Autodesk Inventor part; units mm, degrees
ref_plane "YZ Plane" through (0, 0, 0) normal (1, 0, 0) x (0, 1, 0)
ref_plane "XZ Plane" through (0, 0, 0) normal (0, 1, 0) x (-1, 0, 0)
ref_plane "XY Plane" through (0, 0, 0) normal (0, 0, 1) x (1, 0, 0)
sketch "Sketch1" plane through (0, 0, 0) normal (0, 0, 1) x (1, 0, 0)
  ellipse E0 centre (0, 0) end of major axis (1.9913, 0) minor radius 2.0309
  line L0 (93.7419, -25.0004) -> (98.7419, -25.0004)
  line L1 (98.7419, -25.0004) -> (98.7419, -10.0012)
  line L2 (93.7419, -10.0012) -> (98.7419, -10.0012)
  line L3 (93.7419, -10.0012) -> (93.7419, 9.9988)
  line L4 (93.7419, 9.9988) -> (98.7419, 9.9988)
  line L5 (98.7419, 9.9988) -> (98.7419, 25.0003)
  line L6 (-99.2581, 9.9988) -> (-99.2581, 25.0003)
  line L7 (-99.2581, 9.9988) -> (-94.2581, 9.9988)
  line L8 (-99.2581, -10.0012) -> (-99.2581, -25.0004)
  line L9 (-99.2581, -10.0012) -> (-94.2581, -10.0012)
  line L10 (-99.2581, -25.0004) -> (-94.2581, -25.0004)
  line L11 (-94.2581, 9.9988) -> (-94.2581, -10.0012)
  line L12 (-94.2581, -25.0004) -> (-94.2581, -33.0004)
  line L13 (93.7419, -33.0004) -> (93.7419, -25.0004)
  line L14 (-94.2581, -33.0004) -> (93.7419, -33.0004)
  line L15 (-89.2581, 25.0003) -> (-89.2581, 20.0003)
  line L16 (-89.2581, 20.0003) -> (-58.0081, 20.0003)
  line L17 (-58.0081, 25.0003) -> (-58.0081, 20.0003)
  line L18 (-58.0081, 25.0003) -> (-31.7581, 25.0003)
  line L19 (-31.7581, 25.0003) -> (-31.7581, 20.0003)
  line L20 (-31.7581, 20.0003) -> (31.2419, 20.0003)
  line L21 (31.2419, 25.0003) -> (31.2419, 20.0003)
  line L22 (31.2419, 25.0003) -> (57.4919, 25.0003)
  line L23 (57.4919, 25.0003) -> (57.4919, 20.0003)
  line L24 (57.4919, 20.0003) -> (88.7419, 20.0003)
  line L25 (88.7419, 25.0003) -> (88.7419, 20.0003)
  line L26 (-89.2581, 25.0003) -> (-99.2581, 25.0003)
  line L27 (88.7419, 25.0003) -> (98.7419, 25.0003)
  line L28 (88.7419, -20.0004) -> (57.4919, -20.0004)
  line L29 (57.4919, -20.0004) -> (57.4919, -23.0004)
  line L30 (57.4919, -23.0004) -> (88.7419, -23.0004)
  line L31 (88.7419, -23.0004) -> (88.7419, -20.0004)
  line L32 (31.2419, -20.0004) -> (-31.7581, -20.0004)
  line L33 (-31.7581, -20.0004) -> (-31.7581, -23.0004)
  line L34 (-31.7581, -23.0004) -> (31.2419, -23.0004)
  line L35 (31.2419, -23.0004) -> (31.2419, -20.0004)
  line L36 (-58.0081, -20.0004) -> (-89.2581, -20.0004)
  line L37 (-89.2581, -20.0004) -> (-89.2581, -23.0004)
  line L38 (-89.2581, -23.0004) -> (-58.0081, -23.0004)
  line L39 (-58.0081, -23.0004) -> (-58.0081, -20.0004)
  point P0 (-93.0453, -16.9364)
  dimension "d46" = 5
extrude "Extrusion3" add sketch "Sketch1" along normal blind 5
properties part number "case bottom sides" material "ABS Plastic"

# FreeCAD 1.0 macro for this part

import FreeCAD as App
import Part
import Sketcher

V = App.Vector

doc = App.newDocument("Part")
params = doc.addObject("Spreadsheet::Sheet", "Params")
for row, (alias, value) in enumerate([
    ("sketch1_width", "5 mm"),
    ("sketch1_width2", "63 mm"),
    ("sketch1_width3", "188 mm"),
    ("sketch1_height", "8 mm"),
    ("sketch1_height2", "20 mm"),
    ("pad1_length", "5 mm"),
], start=1):
    params.set(f"A{row}", alias)
    params.set(f"B{row}", "=" + value)
    params.setAlias(f"B{row}", alias)

body = doc.addObject("PartDesign::Body", "Body")

# Sketch on XY plane
sketch1 = body.newObject("Sketcher::SketchObject", "Sketch")
sketch1.AttachmentSupport = (doc.getObject("XY_Plane"), [""])
sketch1.MapMode = "FlatFace"
sketch1.addGeometry(Part.LineSegment(V(93.7419, -33.0004, 0), V(93.7419, -25.0004, 0)), False)
sketch1.addGeometry(Part.LineSegment(V(93.7419, -25.0004, 0), V(98.7419, -25.0004, 0)), False)
sketch1.addGeometry(Part.LineSegment(V(98.7419, -25.0004, 0), V(98.7419, -10.0012, 0)), False)
sketch1.addGeometry(Part.LineSegment(V(98.7419, -10.0012, 0), V(93.7419, -10.0012, 0)), False)
sketch1.addGeometry(Part.LineSegment(V(93.7419, -10.0012, 0), V(93.7419, 9.9988, 0)), False)
sketch1.addGeometry(Part.LineSegment(V(93.7419, 9.9988, 0), V(98.7419, 9.9988, 0)), False)
sketch1.addGeometry(Part.LineSegment(V(98.7419, 9.9988, 0), V(98.7419, 25.0003, 0)), False)
sketch1.addGeometry(Part.LineSegment(V(98.7419, 25.0003, 0), V(88.7419, 25.0003, 0)), False)
sketch1.addGeometry(Part.LineSegment(V(88.7419, 25.0003, 0), V(88.7419, 20.0003, 0)), False)
sketch1.addGeometry(Part.LineSegment(V(88.7419, 20.0003, 0), V(57.4919, 20.0003, 0)), False)
sketch1.addGeometry(Part.LineSegment(V(57.4919, 20.0003, 0), V(57.4919, 25.0003, 0)), False)
sketch1.addGeometry(Part.LineSegment(V(57.4919, 25.0003, 0), V(31.2419, 25.0003, 0)), False)
sketch1.addGeometry(Part.LineSegment(V(31.2419, 25.0003, 0), V(31.2419, 20.0003, 0)), False)
sketch1.addGeometry(Part.LineSegment(V(31.2419, 20.0003, 0), V(-31.7581, 20.0003, 0)), False)
sketch1.addGeometry(Part.LineSegment(V(-31.7581, 20.0003, 0), V(-31.7581, 25.0003, 0)), False)
sketch1.addGeometry(Part.LineSegment(V(-31.7581, 25.0003, 0), V(-58.0081, 25.0003, 0)), False)
sketch1.addGeometry(Part.LineSegment(V(-58.0081, 25.0003, 0), V(-58.0081, 20.0003, 0)), False)
sketch1.addGeometry(Part.LineSegment(V(-58.0081, 20.0003, 0), V(-89.2581, 20.0003, 0)), False)
sketch1.addGeometry(Part.LineSegment(V(-89.2581, 20.0003, 0), V(-89.2581, 25.0003, 0)), False)
sketch1.addGeometry(Part.LineSegment(V(-89.2581, 25.0003, 0), V(-99.2581, 25.0003, 0)), False)
sketch1.addGeometry(Part.LineSegment(V(-99.2581, 25.0003, 0), V(-99.2581, 9.9988, 0)), False)
sketch1.addGeometry(Part.LineSegment(V(-99.2581, 9.9988, 0), V(-94.2581, 9.9988, 0)), False)
sketch1.addGeometry(Part.LineSegment(V(-94.2581, 9.9988, 0), V(-94.2581, -10.0012, 0)), False)
sketch1.addGeometry(Part.LineSegment(V(-94.2581, -10.0012, 0), V(-99.2581, -10.0012, 0)), False)
sketch1.addGeometry(Part.LineSegment(V(-99.2581, -10.0012, 0), V(-99.2581, -25.0004, 0)), False)
sketch1.addGeometry(Part.LineSegment(V(-99.2581, -25.0004, 0), V(-94.2581, -25.0004, 0)), False)
sketch1.addGeometry(Part.LineSegment(V(-94.2581, -25.0004, 0), V(-94.2581, -33.0004, 0)), False)
sketch1.addGeometry(Part.LineSegment(V(-94.2581, -33.0004, 0), V(93.7419, -33.0004, 0)), False)
sketch1.addGeometry(Part.LineSegment(V(-89.2581, -20.0004, 0), V(-58.0081, -20.0004, 0)), False)
sketch1.addGeometry(Part.LineSegment(V(-58.0081, -20.0004, 0), V(-58.0081, -23.0004, 0)), False)
sketch1.addGeometry(Part.LineSegment(V(-58.0081, -23.0004, 0), V(-89.2581, -23.0004, 0)), False)
sketch1.addGeometry(Part.LineSegment(V(-89.2581, -23.0004, 0), V(-89.2581, -20.0004, 0)), False)
sketch1.addGeometry(Part.LineSegment(V(-31.7581, -20.0004, 0), V(31.2419, -20.0004, 0)), False)
sketch1.addGeometry(Part.LineSegment(V(31.2419, -20.0004, 0), V(31.2419, -23.0004, 0)), False)
sketch1.addGeometry(Part.LineSegment(V(31.2419, -23.0004, 0), V(-31.7581, -23.0004, 0)), False)
sketch1.addGeometry(Part.LineSegment(V(-31.7581, -23.0004, 0), V(-31.7581, -20.0004, 0)), False)
sketch1.addGeometry(Part.LineSegment(V(57.4919, -20.0004, 0), V(88.7419, -20.0004, 0)), False)
sketch1.addGeometry(Part.LineSegment(V(88.7419, -20.0004, 0), V(88.7419, -23.0004, 0)), False)
sketch1.addGeometry(Part.LineSegment(V(88.7419, -23.0004, 0), V(57.4919, -23.0004, 0)), False)
sketch1.addGeometry(Part.LineSegment(V(57.4919, -23.0004, 0), V(57.4919, -20.0004, 0)), False)
sketch1.addGeometry(Part.Ellipse(V(0, 2.0309, 0), V(-1.9913, 0, 0), V(0, 0, 0)), False)
sketch1.addConstraint(Sketcher.Constraint("Block", 40))
sketch1.addConstraint(Sketcher.Constraint("Coincident", 0, 2, 1, 1))
sketch1.addConstraint(Sketcher.Constraint("Coincident", 1, 2, 2, 1))
sketch1.addConstraint(Sketcher.Constraint("Coincident", 2, 2, 3, 1))
sketch1.addConstraint(Sketcher.Constraint("Coincident", 3, 2, 4, 1))
sketch1.addConstraint(Sketcher.Constraint("Coincident", 4, 2, 5, 1))
sketch1.addConstraint(Sketcher.Constraint("Coincident", 5, 2, 6, 1))
sketch1.addConstraint(Sketcher.Constraint("Coincident", 6, 2, 7, 1))
sketch1.addConstraint(Sketcher.Constraint("Coincident", 7, 2, 8, 1))
sketch1.addConstraint(Sketcher.Constraint("Coincident", 8, 2, 9, 1))
sketch1.addConstraint(Sketcher.Constraint("Coincident", 9, 2, 10, 1))
sketch1.addConstraint(Sketcher.Constraint("Coincident", 10, 2, 11, 1))
sketch1.addConstraint(Sketcher.Constraint("Coincident", 11, 2, 12, 1))
sketch1.addConstraint(Sketcher.Constraint("Coincident", 12, 2, 13, 1))
sketch1.addConstraint(Sketcher.Constraint("Coincident", 13, 2, 14, 1))
sketch1.addConstraint(Sketcher.Constraint("Coincident", 14, 2, 15, 1))
sketch1.addConstraint(Sketcher.Constraint("Coincident", 15, 2, 16, 1))
sketch1.addConstraint(Sketcher.Constraint("Coincident", 16, 2, 17, 1))
sketch1.addConstraint(Sketcher.Constraint("Coincident", 17, 2, 18, 1))
sketch1.addConstraint(Sketcher.Constraint("Coincident", 18, 2, 19, 1))
sketch1.addConstraint(Sketcher.Constraint("Coincident", 19, 2, 20, 1))
sketch1.addConstraint(Sketcher.Constraint("Coincident", 20, 2, 21, 1))
sketch1.addConstraint(Sketcher.Constraint("Coincident", 21, 2, 22, 1))
sketch1.addConstraint(Sketcher.Constraint("Coincident", 22, 2, 23, 1))
sketch1.addConstraint(Sketcher.Constraint("Coincident", 23, 2, 24, 1))
sketch1.addConstraint(Sketcher.Constraint("Coincident", 24, 2, 25, 1))
sketch1.addConstraint(Sketcher.Constraint("Coincident", 25, 2, 26, 1))
sketch1.addConstraint(Sketcher.Constraint("Coincident", 26, 2, 27, 1))
sketch1.addConstraint(Sketcher.Constraint("Coincident", 27, 2, 0, 1))
sketch1.addConstraint(Sketcher.Constraint("Coincident", 28, 2, 29, 1))
sketch1.addConstraint(Sketcher.Constraint("Coincident", 29, 2, 30, 1))
sketch1.addConstraint(Sketcher.Constraint("Coincident", 30, 2, 31, 1))
sketch1.addConstraint(Sketcher.Constraint("Coincident", 31, 2, 28, 1))
sketch1.addConstraint(Sketcher.Constraint("Coincident", 32, 2, 33, 1))
sketch1.addConstraint(Sketcher.Constraint("Coincident", 33, 2, 34, 1))
sketch1.addConstraint(Sketcher.Constraint("Coincident", 34, 2, 35, 1))
sketch1.addConstraint(Sketcher.Constraint("Coincident", 35, 2, 32, 1))
sketch1.addConstraint(Sketcher.Constraint("Coincident", 36, 2, 37, 1))
sketch1.addConstraint(Sketcher.Constraint("Coincident", 37, 2, 38, 1))
sketch1.addConstraint(Sketcher.Constraint("Coincident", 38, 2, 39, 1))
sketch1.addConstraint(Sketcher.Constraint("Coincident", 39, 2, 36, 1))
sketch1.addConstraint(Sketcher.Constraint("Vertical", 0))
sketch1.addConstraint(Sketcher.Constraint("Horizontal", 1))
sketch1.addConstraint(Sketcher.Constraint("Vertical", 2))
sketch1.addConstraint(Sketcher.Constraint("Horizontal", 3))
sketch1.addConstraint(Sketcher.Constraint("Vertical", 4))
sketch1.addConstraint(Sketcher.Constraint("Horizontal", 5))
sketch1.addConstraint(Sketcher.Constraint("Vertical", 6))
sketch1.addConstraint(Sketcher.Constraint("Horizontal", 7))
sketch1.addConstraint(Sketcher.Constraint("Vertical", 8))
sketch1.addConstraint(Sketcher.Constraint("Horizontal", 9))
sketch1.addConstraint(Sketcher.Constraint("Vertical", 10))
sketch1.addConstraint(Sketcher.Constraint("Horizontal", 11))
sketch1.addConstraint(Sketcher.Constraint("Vertical", 12))
sketch1.addConstraint(Sketcher.Constraint("Horizontal", 13))
sketch1.addConstraint(Sketcher.Constraint("Vertical", 14))
sketch1.addConstraint(Sketcher.Constraint("Horizontal", 15))
sketch1.addConstraint(Sketcher.Constraint("Vertical", 16))
sketch1.addConstraint(Sketcher.Constraint("Horizontal", 17))
sketch1.addConstraint(Sketcher.Constraint("Vertical", 18))
sketch1.addConstraint(Sketcher.Constraint("Horizontal", 19))
sketch1.addConstraint(Sketcher.Constraint("Vertical", 20))
sketch1.addConstraint(Sketcher.Constraint("Horizontal", 21))
sketch1.addConstraint(Sketcher.Constraint("Vertical", 22))
sketch1.addConstraint(Sketcher.Constraint("Horizontal", 23))
sketch1.addConstraint(Sketcher.Constraint("Vertical", 24))
sketch1.addConstraint(Sketcher.Constraint("Horizontal", 25))
sketch1.addConstraint(Sketcher.Constraint("Vertical", 26))
sketch1.addConstraint(Sketcher.Constraint("Horizontal", 27))
sketch1.addConstraint(Sketcher.Constraint("Horizontal", 28))
sketch1.addConstraint(Sketcher.Constraint("Vertical", 29))
sketch1.addConstraint(Sketcher.Constraint("Horizontal", 30))
sketch1.addConstraint(Sketcher.Constraint("Vertical", 31))
sketch1.addConstraint(Sketcher.Constraint("Horizontal", 32))
sketch1.addConstraint(Sketcher.Constraint("Vertical", 33))
sketch1.addConstraint(Sketcher.Constraint("Horizontal", 34))
sketch1.addConstraint(Sketcher.Constraint("Vertical", 35))
sketch1.addConstraint(Sketcher.Constraint("Horizontal", 36))
sketch1.addConstraint(Sketcher.Constraint("Vertical", 37))
sketch1.addConstraint(Sketcher.Constraint("Horizontal", 38))
sketch1.addConstraint(Sketcher.Constraint("Vertical", 39))
sketch1.addConstraint(Sketcher.Constraint("Symmetric", 1, 2, 6, 2, -1))
sketch1.addConstraint(Sketcher.Constraint("Symmetric", 19, 2, 24, 2, -1))
sketch1.addConstraint(Sketcher.Constraint("Symmetric", 16, 2, 28, 2, -1))
sketch1.addConstraint(Sketcher.Constraint("Symmetric", 12, 2, 32, 2, -1))
sketch1.addConstraint(Sketcher.Constraint("Symmetric", 8, 2, 36, 2, -1))
sketch1.addConstraint(Sketcher.Constraint("Horizontal", 7, 2, 10, 2))
sketch1.addConstraint(Sketcher.Constraint("Horizontal", 9, 2, 12, 2))
sketch1.addConstraint(Sketcher.Constraint("Horizontal", 11, 2, 14, 2))
sketch1.addConstraint(Sketcher.Constraint("Horizontal", 13, 2, 16, 2))
sketch1.addConstraint(Sketcher.Constraint("Horizontal", 15, 2, 18, 2))
sketch1.addConstraint(Sketcher.Constraint("Horizontal", 5, 2, 20, 2))
sketch1.addConstraint(Sketcher.Constraint("Horizontal", 3, 2, 22, 2))
sketch1.addConstraint(Sketcher.Constraint("Horizontal", 30, 2, 33, 2))
sketch1.addConstraint(Sketcher.Constraint("Horizontal", 34, 2, 37, 2))
sketch1.addConstraint(Sketcher.Constraint("Vertical", 0, 2, 3, 2))
sketch1.addConstraint(Sketcher.Constraint("Vertical", 22, 2, 25, 2))
sketch1.addConstraint(Sketcher.Constraint("Vertical", 18, 2, 30, 2))
sketch1.addConstraint(Sketcher.Constraint("Vertical", 14, 2, 34, 2))
sketch1.addConstraint(Sketcher.Constraint("Vertical", 10, 2, 38, 2))
sketch1.addConstraint(Sketcher.Constraint("Equal", 11, 15))
sketch1.addConstraint(Sketcher.Constraint("Equal", 9, 17))
sketch1.addConstraint(Sketcher.Constraint("Equal", 7, 19))
sketch1.addConstraint(Sketcher.Constraint("Equal", 5, 21))
sketch1.addConstraint(Sketcher.Constraint("Equal", 25, 8))
sketch1.addConstraint(Sketcher.Constraint("DistanceX", 1, 1, 1, 2, 5.0))
sketch1.addConstraint(Sketcher.Constraint("DistanceX", 7, 2, 4, 2, 5.0))
sketch1.addConstraint(Sketcher.Constraint("DistanceX", 13, 2, 13, 1, 63.0))
sketch1.addConstraint(Sketcher.Constraint("DistanceX", 27, 1, 27, 2, 188.0))
sketch1.addConstraint(Sketcher.Constraint("DistanceY", 0, 1, 0, 2, 8.0))
sketch1.addConstraint(Sketcher.Constraint("DistanceY", 4, 1, 4, 2, 20.0))
sketch1.addConstraint(Sketcher.Constraint("DistanceY", 29, 2, 29, 1, 3.0))
sketch1.addConstraint(Sketcher.Constraint("DistanceX", 9, 2, 9, 1, 31.25))
sketch1.addConstraint(Sketcher.Constraint("DistanceY", 2, 1, 2, 2, 14.9992))
sketch1.addConstraint(Sketcher.Constraint("DistanceY", 6, 1, 6, 2, 15.0015))
sketch1.addConstraint(Sketcher.Constraint("DistanceX", -1, 1, 0, 2, 93.742))
sketch1.setExpression("Constraints[105]", "Params.sketch1_width")
sketch1.setExpression("Constraints[107]", "Params.sketch1_width2")
sketch1.setExpression("Constraints[108]", "Params.sketch1_width3")
sketch1.setExpression("Constraints[109]", "Params.sketch1_height")
sketch1.setExpression("Constraints[110]", "Params.sketch1_height2")
pad1 = body.newObject("PartDesign::Pad", "Pad")
pad1.Profile = sketch1
pad1.setExpression("Length", "Params.pad1_length")

doc.recompute()
